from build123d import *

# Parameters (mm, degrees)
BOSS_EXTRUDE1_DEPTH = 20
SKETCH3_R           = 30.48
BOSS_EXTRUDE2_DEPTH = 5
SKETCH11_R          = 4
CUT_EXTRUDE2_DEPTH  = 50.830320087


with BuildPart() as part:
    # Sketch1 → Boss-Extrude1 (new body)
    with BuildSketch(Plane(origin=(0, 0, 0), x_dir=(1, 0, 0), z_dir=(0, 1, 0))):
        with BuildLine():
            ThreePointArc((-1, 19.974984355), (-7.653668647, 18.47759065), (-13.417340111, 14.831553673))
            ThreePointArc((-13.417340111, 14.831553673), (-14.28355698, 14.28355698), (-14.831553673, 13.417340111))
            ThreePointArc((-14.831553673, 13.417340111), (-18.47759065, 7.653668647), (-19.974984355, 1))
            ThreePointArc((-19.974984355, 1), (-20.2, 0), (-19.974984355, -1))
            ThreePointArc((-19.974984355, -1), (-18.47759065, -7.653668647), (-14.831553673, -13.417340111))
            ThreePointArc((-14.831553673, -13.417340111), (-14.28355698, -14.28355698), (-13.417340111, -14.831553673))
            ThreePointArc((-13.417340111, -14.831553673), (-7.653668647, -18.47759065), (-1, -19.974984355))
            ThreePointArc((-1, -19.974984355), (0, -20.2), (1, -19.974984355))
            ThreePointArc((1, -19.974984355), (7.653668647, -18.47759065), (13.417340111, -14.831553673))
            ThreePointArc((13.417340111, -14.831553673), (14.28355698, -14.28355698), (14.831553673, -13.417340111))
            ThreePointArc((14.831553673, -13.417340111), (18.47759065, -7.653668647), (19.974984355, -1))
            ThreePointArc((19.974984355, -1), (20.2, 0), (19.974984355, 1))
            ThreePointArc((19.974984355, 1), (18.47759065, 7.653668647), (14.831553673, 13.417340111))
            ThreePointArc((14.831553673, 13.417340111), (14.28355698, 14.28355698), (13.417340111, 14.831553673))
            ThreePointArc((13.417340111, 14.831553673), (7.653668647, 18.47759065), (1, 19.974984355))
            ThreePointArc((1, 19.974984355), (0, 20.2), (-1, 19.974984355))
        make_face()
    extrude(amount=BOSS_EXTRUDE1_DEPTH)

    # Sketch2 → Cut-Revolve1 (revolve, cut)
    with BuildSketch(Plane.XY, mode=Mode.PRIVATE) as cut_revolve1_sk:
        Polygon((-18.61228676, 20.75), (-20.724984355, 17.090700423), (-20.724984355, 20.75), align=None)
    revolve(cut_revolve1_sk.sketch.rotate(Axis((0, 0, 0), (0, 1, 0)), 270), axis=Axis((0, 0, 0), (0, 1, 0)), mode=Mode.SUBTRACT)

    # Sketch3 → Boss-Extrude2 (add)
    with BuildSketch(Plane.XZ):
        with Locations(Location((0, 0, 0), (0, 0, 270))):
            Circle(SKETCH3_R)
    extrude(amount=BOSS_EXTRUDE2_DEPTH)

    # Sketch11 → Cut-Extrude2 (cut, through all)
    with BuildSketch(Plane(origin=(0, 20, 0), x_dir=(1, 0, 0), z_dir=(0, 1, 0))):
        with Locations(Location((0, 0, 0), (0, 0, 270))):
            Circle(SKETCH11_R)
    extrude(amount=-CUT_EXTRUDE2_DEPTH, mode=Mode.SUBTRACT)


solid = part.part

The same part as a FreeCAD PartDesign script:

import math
import FreeCAD as App
import Part
import Sketcher
from FreeCAD import Vector
Q = App.Units.Quantity


def add_polygon(sketch, points):
    """Adds a closed chain of lines whose ends are joined by coincident constraints."""
    first, n = sketch.GeometryCount, len(points)
    for a, b in zip(points, points[1:] + points[:1]):
        sketch.addGeometry(Part.LineSegment(App.Vector(*a, 0), App.Vector(*b, 0)), False)
    for i in range(n):
        sketch.addConstraint(Sketcher.Constraint("Coincident", first + i, 2, first + (i + 1) % n, 1))

doc = App.newDocument("Part")
body = doc.addObject("PartDesign::Body", "Body")

sketch1 = body.newObject("Sketcher::SketchObject", "Sketch")
sketch1.AttachmentSupport = (doc.getObject("XZ_Plane"), [""])
sketch1.MapMode = "FlatFace"
sketch1.addGeometry(Part.ArcOfCircle(Part.Circle(Vector(0, 0, 0), Vector(0, 0, 1), 20), math.radians(-132), math.radians(-93)), False)
sketch1.addGeometry(Part.ArcOfCircle(Part.Circle(Vector(-12.6, -12.6, 0), Vector(0, 0, 1), 2.3), math.radians(-160), math.radians(-110)), False)
sketch1.addGeometry(Part.ArcOfCircle(Part.Circle(Vector(0, 0, 0), Vector(0, 0, 1), 20), math.radians(-177), math.radians(-138)), False)
sketch1.addGeometry(Part.ArcOfCircle(Part.Circle(Vector(-17.9, 0, 0), Vector(0, 0, 1), 2.3), math.radians(155), math.radians(205)), False)
sketch1.addGeometry(Part.ArcOfCircle(Part.Circle(Vector(0, 0, 0), Vector(0, 0, 1), 20), math.radians(138), math.radians(177)), False)
sketch1.addGeometry(Part.ArcOfCircle(Part.Circle(Vector(-12.6, 12.6, 0), Vector(0, 0, 1), 2.3), math.radians(110), math.radians(160)), False)
sketch1.addGeometry(Part.ArcOfCircle(Part.Circle(Vector(0, 0, 0), Vector(0, 0, 1), 20), math.radians(93), math.radians(132)), False)
sketch1.addGeometry(Part.ArcOfCircle(Part.Circle(Vector(0, 17.9, 0), Vector(0, 0, 1), 2.3), math.radians(65), math.radians(115)), False)
sketch1.addGeometry(Part.ArcOfCircle(Part.Circle(Vector(0, 0, 0), Vector(0, 0, 1), 20), math.radians(48), math.radians(87)), False)
sketch1.addGeometry(Part.ArcOfCircle(Part.Circle(Vector(12.6, 12.6, 0), Vector(0, 0, 1), 2.3), math.radians(20), math.radians(70)), False)
sketch1.addGeometry(Part.ArcOfCircle(Part.Circle(Vector(0, 0, 0), Vector(0, 0, 1), 20), math.radians(3), math.radians(42)), False)
sketch1.addGeometry(Part.ArcOfCircle(Part.Circle(Vector(17.9, 0, 0), Vector(0, 0, 1), 2.3), math.radians(-25), math.radians(25)), False)
sketch1.addGeometry(Part.ArcOfCircle(Part.Circle(Vector(0, 0, 0), Vector(0, 0, 1), 20), math.radians(-42), math.radians(-3)), False)
sketch1.addGeometry(Part.ArcOfCircle(Part.Circle(Vector(12.6, -12.6, 0), Vector(0, 0, 1), 2.3), math.radians(-70), math.radians(-20)), False)
sketch1.addGeometry(Part.ArcOfCircle(Part.Circle(Vector(0, 0, 0), Vector(0, 0, 1), 20), math.radians(-87), math.radians(-48)), False)
sketch1.addGeometry(Part.ArcOfCircle(Part.Circle(Vector(0, -17.9, 0), Vector(0, 0, 1), 2.3), math.radians(-115), math.radians(-65)), False)
sketch1.addConstraint(Sketcher.Constraint("Coincident", 0, 1, 1, 2))
sketch1.addConstraint(Sketcher.Constraint("Coincident", 1, 1, 2, 2))
sketch1.addConstraint(Sketcher.Constraint("Coincident", 2, 1, 3, 2))
sketch1.addConstraint(Sketcher.Constraint("Coincident", 3, 1, 4, 2))
sketch1.addConstraint(Sketcher.Constraint("Coincident", 4, 1, 5, 2))
sketch1.addConstraint(Sketcher.Constraint("Coincident", 5, 1, 6, 2))
sketch1.addConstraint(Sketcher.Constraint("Coincident", 6, 1, 7, 2))
sketch1.addConstraint(Sketcher.Constraint("Coincident", 7, 1, 8, 2))
sketch1.addConstraint(Sketcher.Constraint("Coincident", 8, 1, 9, 2))
sketch1.addConstraint(Sketcher.Constraint("Coincident", 9, 1, 10, 2))
sketch1.addConstraint(Sketcher.Constraint("Coincident", 10, 1, 11, 2))
sketch1.addConstraint(Sketcher.Constraint("Coincident", 11, 1, 12, 2))
sketch1.addConstraint(Sketcher.Constraint("Coincident", 12, 1, 13, 2))
sketch1.addConstraint(Sketcher.Constraint("Coincident", 13, 1, 14, 2))
sketch1.addConstraint(Sketcher.Constraint("Coincident", 14, 1, 15, 2))
sketch1.addConstraint(Sketcher.Constraint("Coincident", 15, 1, 0, 2))
sketch1.addConstraint(Sketcher.Constraint("Coincident", 0, 3, -1, 1))
sketch1.addConstraint(Sketcher.Constraint("Coincident", 2, 3, -1, 1))
sketch1.addConstraint(Sketcher.Constraint("Coincident", 4, 3, -1, 1))
sketch1.addConstraint(Sketcher.Constraint("Coincident", 6, 3, -1, 1))
sketch1.addConstraint(Sketcher.Constraint("Coincident", 8, 3, -1, 1))
sketch1.addConstraint(Sketcher.Constraint("Coincident", 10, 3, -1, 1))
sketch1.addConstraint(Sketcher.Constraint("Coincident", 12, 3, -1, 1))
sketch1.addConstraint(Sketcher.Constraint("Coincident", 14, 3, -1, 1))
sketch1.addConstraint(Sketcher.Constraint("Equal", 0, 2))
sketch1.addConstraint(Sketcher.Constraint("Equal", 1, 3))
sketch1.addConstraint(Sketcher.Constraint("Equal", 2, 4))
sketch1.addConstraint(Sketcher.Constraint("Equal", 3, 5))
sketch1.addConstraint(Sketcher.Constraint("Equal", 4, 6))
sketch1.addConstraint(Sketcher.Constraint("Equal", 5, 7))
sketch1.addConstraint(Sketcher.Constraint("Equal", 6, 8))
sketch1.addConstraint(Sketcher.Constraint("Equal", 7, 9))
sketch1.addConstraint(Sketcher.Constraint("Equal", 8, 10))
sketch1.addConstraint(Sketcher.Constraint("Equal", 9, 11))
sketch1.addConstraint(Sketcher.Constraint("Equal", 10, 12))
sketch1.addConstraint(Sketcher.Constraint("Equal", 11, 13))
sketch1.addConstraint(Sketcher.Constraint("Equal", 12, 14))
sketch1.addConstraint(Sketcher.Constraint("Equal", 13, 15))
sketch1.addConstraint(Sketcher.Constraint("Symmetric", 1, 3, 9, 3, -1, 1))
sketch1.addConstraint(Sketcher.Constraint("Symmetric", 3, 3, 11, 3, -1, 1))
sketch1.addConstraint(Sketcher.Constraint("Symmetric", 5, 3, 13, 3, -1, 1))
sketch1.addConstraint(Sketcher.Constraint("Symmetric", 7, 3, 15, 3, -1, 1))
sketch1.addConstraint(Sketcher.Constraint("Symmetric", 5, 3, 9, 3, -2))
sketch1.addConstraint(Sketcher.Constraint("PointOnObject", 3, 3, -1))
sketch1.addConstraint(Sketcher.Constraint("PointOnObject", 7, 3, -2))
sketch1.addConstraint(Sketcher.Constraint("Radius", 0, Q("20 mm")))
sketch1.addConstraint(Sketcher.Constraint("DistanceY", 2, 1, -1, 1, Q("1 mm")))
sketch1.addConstraint(Sketcher.Constraint("DistanceX", 6, 1, -1, 1, Q("1 mm")))
sketch1.addConstraint(Sketcher.Constraint("Radius", 1, Q("2.334576 mm")))
sketch1.addConstraint(Sketcher.Constraint("DistanceX", 0, 1, -1, 1, Q("13.41734 mm")))
sketch1.addConstraint(Sketcher.Constraint("DistanceY", 1, 1, -1, 1, Q("13.41734 mm")))
pad1 = body.newObject("PartDesign::Pad", "Pad")
pad1.Profile = sketch1
pad1.Length = 20
pad1.Reversed = True

sketch2 = body.newObject("Sketcher::SketchObject", "Sketch001")
sketch2.AttachmentSupport = (doc.getObject("XY_Plane"), [""])
sketch2.MapMode = "FlatFace"
add_polygon(sketch2, [(-20.7, 17.1), (-18.6, 20.8), (-20.7, 20.8)])
sketch2.addConstraint(Sketcher.Constraint("Horizontal", 1))
sketch2.addConstraint(Sketcher.Constraint("Vertical", 2))
sketch2.addConstraint(Sketcher.Constraint("Angle", 0, Q("60 deg")))
sketch2.addConstraint(Sketcher.Constraint("DistanceY", -1, 1, 0, 2, Q("20.75 mm")))
sketch2.addConstraint(Sketcher.Constraint("DistanceY", 2, 2, 2, 1, Q("3.6593 mm")))
sketch2.addConstraint(Sketcher.Constraint("DistanceX", 0, 2, -1, 1, Q("18.612287 mm")))
groove = body.newObject("PartDesign::Groove", "Groove")
groove.Profile = sketch2
groove.ReferenceAxis = (sketch2, ["V_Axis"])
groove.Angle = 360

sketch3 = body.newObject("Sketcher::SketchObject", "Sketch002")
sketch3.AttachmentSupport = (doc.getObject("XZ_Plane"), [""])
sketch3.MapMode = "FlatFace"
sketch3.addGeometry(Part.Circle(Vector(0, 0, 0), Vector(0, 0, 1), 30), False)
sketch3.addConstraint(Sketcher.Constraint("Coincident", 0, 3, -1, 1))
sketch3.addConstraint(Sketcher.Constraint("Diameter", 0, Q("60.96 mm")))
pad2 = body.newObject("PartDesign::Pad", "Pad001")
pad2.Profile = sketch3
pad2.Length = 5

sketch4 = body.newObject("Sketcher::SketchObject", "Sketch003")
sketch4.AttachmentSupport = (doc.getObject("XZ_Plane"), [""])
sketch4.MapMode = "FlatFace"
sketch4.AttachmentOffset = App.Placement(Vector(0, 0, -20), App.Rotation())
sketch4.addGeometry(Part.Circle(Vector(0, 0, 0), Vector(0, 0, 1), 4), False)
sketch4.addConstraint(Sketcher.Constraint("Coincident", 0, 3, -1, 1))
sketch4.addConstraint(Sketcher.Constraint("Diameter", 0, Q("8 mm")))
pocket1 = body.newObject("PartDesign::Pocket", "Pocket")
pocket1.Profile = sketch4
pocket1.Type = "ThroughAll"
pocket1.Reversed = True

doc.recompute()
